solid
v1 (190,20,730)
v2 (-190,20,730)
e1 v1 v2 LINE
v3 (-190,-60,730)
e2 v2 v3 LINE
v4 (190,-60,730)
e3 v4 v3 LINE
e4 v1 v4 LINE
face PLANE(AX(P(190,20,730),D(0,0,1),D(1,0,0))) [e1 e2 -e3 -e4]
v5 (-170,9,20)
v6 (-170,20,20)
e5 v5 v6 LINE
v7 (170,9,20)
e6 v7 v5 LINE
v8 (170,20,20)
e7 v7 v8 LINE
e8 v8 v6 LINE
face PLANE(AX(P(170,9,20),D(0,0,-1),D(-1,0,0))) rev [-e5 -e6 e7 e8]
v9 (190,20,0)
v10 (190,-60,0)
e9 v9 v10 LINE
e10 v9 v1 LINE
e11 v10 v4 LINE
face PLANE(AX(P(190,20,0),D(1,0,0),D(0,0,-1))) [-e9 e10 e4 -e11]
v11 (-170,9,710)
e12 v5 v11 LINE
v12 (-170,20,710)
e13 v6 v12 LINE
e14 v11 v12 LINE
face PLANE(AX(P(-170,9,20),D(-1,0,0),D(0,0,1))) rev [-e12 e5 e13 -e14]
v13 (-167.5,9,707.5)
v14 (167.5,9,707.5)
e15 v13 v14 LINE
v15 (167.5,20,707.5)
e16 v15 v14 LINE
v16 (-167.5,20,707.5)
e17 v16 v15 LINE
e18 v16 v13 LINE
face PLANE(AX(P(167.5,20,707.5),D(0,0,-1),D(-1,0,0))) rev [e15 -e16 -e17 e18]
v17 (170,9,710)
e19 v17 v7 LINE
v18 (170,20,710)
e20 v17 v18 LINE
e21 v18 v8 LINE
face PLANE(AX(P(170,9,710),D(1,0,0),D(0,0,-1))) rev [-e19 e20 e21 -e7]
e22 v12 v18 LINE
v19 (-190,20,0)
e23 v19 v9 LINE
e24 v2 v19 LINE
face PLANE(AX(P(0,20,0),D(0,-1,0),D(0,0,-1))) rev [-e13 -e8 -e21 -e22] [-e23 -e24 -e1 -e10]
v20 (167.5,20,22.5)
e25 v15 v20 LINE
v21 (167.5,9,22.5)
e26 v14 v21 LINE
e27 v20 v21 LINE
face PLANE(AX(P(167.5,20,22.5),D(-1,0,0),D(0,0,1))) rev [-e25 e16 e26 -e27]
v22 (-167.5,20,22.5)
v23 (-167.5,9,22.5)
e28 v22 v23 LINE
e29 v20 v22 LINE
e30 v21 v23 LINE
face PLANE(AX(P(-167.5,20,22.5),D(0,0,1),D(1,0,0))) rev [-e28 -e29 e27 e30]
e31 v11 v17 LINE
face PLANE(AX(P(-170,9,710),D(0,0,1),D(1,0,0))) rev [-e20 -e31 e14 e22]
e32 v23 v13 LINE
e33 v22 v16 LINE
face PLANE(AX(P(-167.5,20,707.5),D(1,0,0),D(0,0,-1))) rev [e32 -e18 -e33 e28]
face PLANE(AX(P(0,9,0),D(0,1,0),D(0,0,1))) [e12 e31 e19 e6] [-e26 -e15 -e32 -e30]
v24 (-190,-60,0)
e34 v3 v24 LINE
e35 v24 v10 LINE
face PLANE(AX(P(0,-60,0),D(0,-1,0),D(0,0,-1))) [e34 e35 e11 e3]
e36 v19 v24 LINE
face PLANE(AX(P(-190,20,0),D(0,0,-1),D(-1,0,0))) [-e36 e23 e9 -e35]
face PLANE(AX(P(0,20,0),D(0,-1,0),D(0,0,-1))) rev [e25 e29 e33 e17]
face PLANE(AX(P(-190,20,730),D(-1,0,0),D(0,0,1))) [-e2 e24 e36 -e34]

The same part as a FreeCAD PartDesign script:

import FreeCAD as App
import Part
import Sketcher
from FreeCAD import Vector
Q = App.Units.Quantity


def add_polygon(sketch, points):
    """Adds a closed chain of lines whose ends are joined by coincident constraints."""
    first, n = sketch.GeometryCount, len(points)
    for a, b in zip(points, points[1:] + points[:1]):
        sketch.addGeometry(Part.LineSegment(App.Vector(*a, 0), App.Vector(*b, 0)), False)
    for i in range(n):
        sketch.addConstraint(Sketcher.Constraint("Coincident", first + i, 2, first + (i + 1) % n, 1))

doc = App.newDocument("Part")
body = doc.addObject("PartDesign::Body", "Body")

sketch1 = doc.addObject("Sketcher::SketchObject", "Sketch")
body.addObject(sketch1)
sketch1.AttachmentSupport = (doc.XZ_Plane, [""])
sketch1.MapMode = "FlatFace"
sketch1.AttachmentOffset = App.Placement(Vector(0, 0, 60), App.Rotation())
add_polygon(sketch1, [(-190, 730), (-190, 0), (190, 0), (190, 730)])
sketch1.addConstraint(Sketcher.Constraint("Vertical", 0))
sketch1.addConstraint(Sketcher.Constraint("Horizontal", 1))
sketch1.addConstraint(Sketcher.Constraint("Vertical", 2))
sketch1.addConstraint(Sketcher.Constraint("Horizontal", 3))
sketch1.addConstraint(Sketcher.Constraint("Symmetric", 0, 2, 1, 2, -1, 1))
sketch1.addConstraint(Sketcher.Constraint("DistanceX", 1, 1, 1, 2, Q("380 mm")))
sketch1.addConstraint(Sketcher.Constraint("DistanceY", 0, 2, 0, 1, Q("730 mm")))
pad1 = doc.addObject("PartDesign::Pad", "Pad")
body.addObject(pad1)
pad1.Profile = sketch1
pad1.Length = 80
pad1.Reversed = True

sketch2 = doc.addObject("Sketcher::SketchObject", "Sketch001")
body.addObject(sketch2)
sketch2.AttachmentSupport = (doc.XZ_Plane, [""])
sketch2.MapMode = "FlatFace"
sketch2.AttachmentOffset = App.Placement(Vector(0, 0, -20), App.Rotation())
add_polygon(sketch2, [(170, 710), (170, 20), (-170, 20), (-170, 710)])
sketch2.addConstraint(Sketcher.Constraint("Vertical", 0))
sketch2.addConstraint(Sketcher.Constraint("Horizontal", 1))
sketch2.addConstraint(Sketcher.Constraint("Vertical", 2))
sketch2.addConstraint(Sketcher.Constraint("Horizontal", 3))
sketch2.addConstraint(Sketcher.Constraint("DistanceX", 1, 2, 1, 1, Q("340 mm")))
sketch2.addConstraint(Sketcher.Constraint("DistanceY", 0, 2, 0, 1, Q("690 mm")))
sketch2.addConstraint(Sketcher.Constraint("DistanceX", -1, 1, 0, 2, Q("170 mm")))
sketch2.addConstraint(Sketcher.Constraint("DistanceY", -1, 1, 0, 2, Q("20 mm")))
pocket1 = doc.addObject("PartDesign::Pocket", "Pocket")
body.addObject(pocket1)
pocket1.Profile = sketch2
pocket1.Length = 11
pocket1.Reversed = True

sketch3 = doc.addObject("Sketcher::SketchObject", "Sketch002")
body.addObject(sketch3)
sketch3.AttachmentSupport = (doc.XZ_Plane, [""])
sketch3.MapMode = "FlatFace"
sketch3.AttachmentOffset = App.Placement(Vector(0, 0, -9), App.Rotation())
add_polygon(sketch3, [(168, 708), (168, 22), (-168, 22), (-168, 708)])
sketch3.addConstraint(Sketcher.Constraint("Vertical", 0))
sketch3.addConstraint(Sketcher.Constraint("Horizontal", 1))
sketch3.addConstraint(Sketcher.Constraint("Vertical", 2))
sketch3.addConstraint(Sketcher.Constraint("Horizontal", 3))
sketch3.addConstraint(Sketcher.Constraint("DistanceX", 1, 2, 1, 1, Q("335 mm")))
sketch3.addConstraint(Sketcher.Constraint("DistanceY", 0, 2, 0, 1, Q("685 mm")))
sketch3.addConstraint(Sketcher.Constraint("DistanceX", -1, 1, 0, 2, Q("167.5 mm")))
sketch3.addConstraint(Sketcher.Constraint("DistanceY", -1, 1, 0, 2, Q("22.5 mm")))
pad2 = doc.addObject("PartDesign::Pad", "Pad001")
body.addObject(pad2)
pad2.Profile = sketch3
pad2.Length = 11
pad2.Reversed = True

doc.recompute()
